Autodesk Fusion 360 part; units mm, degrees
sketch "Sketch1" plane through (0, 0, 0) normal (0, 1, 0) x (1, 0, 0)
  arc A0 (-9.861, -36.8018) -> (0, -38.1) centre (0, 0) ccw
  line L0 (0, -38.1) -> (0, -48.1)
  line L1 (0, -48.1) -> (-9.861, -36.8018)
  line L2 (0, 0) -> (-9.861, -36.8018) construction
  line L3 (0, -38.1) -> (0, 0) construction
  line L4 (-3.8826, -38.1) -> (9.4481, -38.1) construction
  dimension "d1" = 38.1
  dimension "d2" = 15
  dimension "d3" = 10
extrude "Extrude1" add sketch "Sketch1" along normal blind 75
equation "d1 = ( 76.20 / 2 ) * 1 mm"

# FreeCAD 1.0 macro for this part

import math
import FreeCAD as App
import Part
import Sketcher
from FreeCAD import Vector

doc = App.newDocument("Part")
params = doc.addObject("Spreadsheet::Sheet", "Params")
for row, (alias, value) in enumerate([
    ("sketch1_height", "10 mm"),
    ("pad1_length", "75 mm"),
], start=1):
    params.set(f"A{row}", alias)
    params.set(f"B{row}", "=" + value)
    params.setAlias(f"B{row}", alias)

body = doc.addObject("PartDesign::Body", "Body")

sketch1 = doc.addObject("Sketcher::SketchObject", "Sketch")
body.addObject(sketch1)
sketch1.AttachmentSupport = (doc.XZ_Plane, [""])
sketch1.MapMode = "FlatFace"
sketch1.addGeometry([
    Part.ArcOfCircle(Part.Circle(Vector(0, 0, 0), Vector(0, 0, 1), 38), math.radians(90), math.radians(105)),
    Part.LineSegment(Vector(-10, 37, 0), Vector(0, 48, 0)),
    Part.LineSegment(Vector(0, 48, 0), Vector(0, 38, 0)),
], False)
sketch1.addConstraint([
    Sketcher.Constraint("Coincident", 0, 2, 1, 1),
    Sketcher.Constraint("Coincident", 1, 2, 2, 1),
    Sketcher.Constraint("Coincident", 2, 2, 0, 1),
    Sketcher.Constraint("Vertical", 2),
    Sketcher.Constraint("PointOnObject", 1, 2, -2),
    Sketcher.Constraint("DistanceY", 2, 2, 2, 1, 10.0),
    Sketcher.Constraint("DistanceY", -1, 1, 2, 2, 38.1),
    Sketcher.Constraint("Radius", 0, 38.0986),
    Sketcher.Constraint("DistanceX", 0, 2, -1, 1, 9.861),
    Sketcher.Constraint("Distance", 1, 14.9963),
])
sketch1.setExpression("Constraints[5]", "Params.sketch1_height")
pad1 = doc.addObject("PartDesign::Pad", "Pad")
body.addObject(pad1)
pad1.Profile = sketch1
pad1.setExpression("Length", "Params.pad1_length")
pad1.Reversed = True

doc.recompute()
